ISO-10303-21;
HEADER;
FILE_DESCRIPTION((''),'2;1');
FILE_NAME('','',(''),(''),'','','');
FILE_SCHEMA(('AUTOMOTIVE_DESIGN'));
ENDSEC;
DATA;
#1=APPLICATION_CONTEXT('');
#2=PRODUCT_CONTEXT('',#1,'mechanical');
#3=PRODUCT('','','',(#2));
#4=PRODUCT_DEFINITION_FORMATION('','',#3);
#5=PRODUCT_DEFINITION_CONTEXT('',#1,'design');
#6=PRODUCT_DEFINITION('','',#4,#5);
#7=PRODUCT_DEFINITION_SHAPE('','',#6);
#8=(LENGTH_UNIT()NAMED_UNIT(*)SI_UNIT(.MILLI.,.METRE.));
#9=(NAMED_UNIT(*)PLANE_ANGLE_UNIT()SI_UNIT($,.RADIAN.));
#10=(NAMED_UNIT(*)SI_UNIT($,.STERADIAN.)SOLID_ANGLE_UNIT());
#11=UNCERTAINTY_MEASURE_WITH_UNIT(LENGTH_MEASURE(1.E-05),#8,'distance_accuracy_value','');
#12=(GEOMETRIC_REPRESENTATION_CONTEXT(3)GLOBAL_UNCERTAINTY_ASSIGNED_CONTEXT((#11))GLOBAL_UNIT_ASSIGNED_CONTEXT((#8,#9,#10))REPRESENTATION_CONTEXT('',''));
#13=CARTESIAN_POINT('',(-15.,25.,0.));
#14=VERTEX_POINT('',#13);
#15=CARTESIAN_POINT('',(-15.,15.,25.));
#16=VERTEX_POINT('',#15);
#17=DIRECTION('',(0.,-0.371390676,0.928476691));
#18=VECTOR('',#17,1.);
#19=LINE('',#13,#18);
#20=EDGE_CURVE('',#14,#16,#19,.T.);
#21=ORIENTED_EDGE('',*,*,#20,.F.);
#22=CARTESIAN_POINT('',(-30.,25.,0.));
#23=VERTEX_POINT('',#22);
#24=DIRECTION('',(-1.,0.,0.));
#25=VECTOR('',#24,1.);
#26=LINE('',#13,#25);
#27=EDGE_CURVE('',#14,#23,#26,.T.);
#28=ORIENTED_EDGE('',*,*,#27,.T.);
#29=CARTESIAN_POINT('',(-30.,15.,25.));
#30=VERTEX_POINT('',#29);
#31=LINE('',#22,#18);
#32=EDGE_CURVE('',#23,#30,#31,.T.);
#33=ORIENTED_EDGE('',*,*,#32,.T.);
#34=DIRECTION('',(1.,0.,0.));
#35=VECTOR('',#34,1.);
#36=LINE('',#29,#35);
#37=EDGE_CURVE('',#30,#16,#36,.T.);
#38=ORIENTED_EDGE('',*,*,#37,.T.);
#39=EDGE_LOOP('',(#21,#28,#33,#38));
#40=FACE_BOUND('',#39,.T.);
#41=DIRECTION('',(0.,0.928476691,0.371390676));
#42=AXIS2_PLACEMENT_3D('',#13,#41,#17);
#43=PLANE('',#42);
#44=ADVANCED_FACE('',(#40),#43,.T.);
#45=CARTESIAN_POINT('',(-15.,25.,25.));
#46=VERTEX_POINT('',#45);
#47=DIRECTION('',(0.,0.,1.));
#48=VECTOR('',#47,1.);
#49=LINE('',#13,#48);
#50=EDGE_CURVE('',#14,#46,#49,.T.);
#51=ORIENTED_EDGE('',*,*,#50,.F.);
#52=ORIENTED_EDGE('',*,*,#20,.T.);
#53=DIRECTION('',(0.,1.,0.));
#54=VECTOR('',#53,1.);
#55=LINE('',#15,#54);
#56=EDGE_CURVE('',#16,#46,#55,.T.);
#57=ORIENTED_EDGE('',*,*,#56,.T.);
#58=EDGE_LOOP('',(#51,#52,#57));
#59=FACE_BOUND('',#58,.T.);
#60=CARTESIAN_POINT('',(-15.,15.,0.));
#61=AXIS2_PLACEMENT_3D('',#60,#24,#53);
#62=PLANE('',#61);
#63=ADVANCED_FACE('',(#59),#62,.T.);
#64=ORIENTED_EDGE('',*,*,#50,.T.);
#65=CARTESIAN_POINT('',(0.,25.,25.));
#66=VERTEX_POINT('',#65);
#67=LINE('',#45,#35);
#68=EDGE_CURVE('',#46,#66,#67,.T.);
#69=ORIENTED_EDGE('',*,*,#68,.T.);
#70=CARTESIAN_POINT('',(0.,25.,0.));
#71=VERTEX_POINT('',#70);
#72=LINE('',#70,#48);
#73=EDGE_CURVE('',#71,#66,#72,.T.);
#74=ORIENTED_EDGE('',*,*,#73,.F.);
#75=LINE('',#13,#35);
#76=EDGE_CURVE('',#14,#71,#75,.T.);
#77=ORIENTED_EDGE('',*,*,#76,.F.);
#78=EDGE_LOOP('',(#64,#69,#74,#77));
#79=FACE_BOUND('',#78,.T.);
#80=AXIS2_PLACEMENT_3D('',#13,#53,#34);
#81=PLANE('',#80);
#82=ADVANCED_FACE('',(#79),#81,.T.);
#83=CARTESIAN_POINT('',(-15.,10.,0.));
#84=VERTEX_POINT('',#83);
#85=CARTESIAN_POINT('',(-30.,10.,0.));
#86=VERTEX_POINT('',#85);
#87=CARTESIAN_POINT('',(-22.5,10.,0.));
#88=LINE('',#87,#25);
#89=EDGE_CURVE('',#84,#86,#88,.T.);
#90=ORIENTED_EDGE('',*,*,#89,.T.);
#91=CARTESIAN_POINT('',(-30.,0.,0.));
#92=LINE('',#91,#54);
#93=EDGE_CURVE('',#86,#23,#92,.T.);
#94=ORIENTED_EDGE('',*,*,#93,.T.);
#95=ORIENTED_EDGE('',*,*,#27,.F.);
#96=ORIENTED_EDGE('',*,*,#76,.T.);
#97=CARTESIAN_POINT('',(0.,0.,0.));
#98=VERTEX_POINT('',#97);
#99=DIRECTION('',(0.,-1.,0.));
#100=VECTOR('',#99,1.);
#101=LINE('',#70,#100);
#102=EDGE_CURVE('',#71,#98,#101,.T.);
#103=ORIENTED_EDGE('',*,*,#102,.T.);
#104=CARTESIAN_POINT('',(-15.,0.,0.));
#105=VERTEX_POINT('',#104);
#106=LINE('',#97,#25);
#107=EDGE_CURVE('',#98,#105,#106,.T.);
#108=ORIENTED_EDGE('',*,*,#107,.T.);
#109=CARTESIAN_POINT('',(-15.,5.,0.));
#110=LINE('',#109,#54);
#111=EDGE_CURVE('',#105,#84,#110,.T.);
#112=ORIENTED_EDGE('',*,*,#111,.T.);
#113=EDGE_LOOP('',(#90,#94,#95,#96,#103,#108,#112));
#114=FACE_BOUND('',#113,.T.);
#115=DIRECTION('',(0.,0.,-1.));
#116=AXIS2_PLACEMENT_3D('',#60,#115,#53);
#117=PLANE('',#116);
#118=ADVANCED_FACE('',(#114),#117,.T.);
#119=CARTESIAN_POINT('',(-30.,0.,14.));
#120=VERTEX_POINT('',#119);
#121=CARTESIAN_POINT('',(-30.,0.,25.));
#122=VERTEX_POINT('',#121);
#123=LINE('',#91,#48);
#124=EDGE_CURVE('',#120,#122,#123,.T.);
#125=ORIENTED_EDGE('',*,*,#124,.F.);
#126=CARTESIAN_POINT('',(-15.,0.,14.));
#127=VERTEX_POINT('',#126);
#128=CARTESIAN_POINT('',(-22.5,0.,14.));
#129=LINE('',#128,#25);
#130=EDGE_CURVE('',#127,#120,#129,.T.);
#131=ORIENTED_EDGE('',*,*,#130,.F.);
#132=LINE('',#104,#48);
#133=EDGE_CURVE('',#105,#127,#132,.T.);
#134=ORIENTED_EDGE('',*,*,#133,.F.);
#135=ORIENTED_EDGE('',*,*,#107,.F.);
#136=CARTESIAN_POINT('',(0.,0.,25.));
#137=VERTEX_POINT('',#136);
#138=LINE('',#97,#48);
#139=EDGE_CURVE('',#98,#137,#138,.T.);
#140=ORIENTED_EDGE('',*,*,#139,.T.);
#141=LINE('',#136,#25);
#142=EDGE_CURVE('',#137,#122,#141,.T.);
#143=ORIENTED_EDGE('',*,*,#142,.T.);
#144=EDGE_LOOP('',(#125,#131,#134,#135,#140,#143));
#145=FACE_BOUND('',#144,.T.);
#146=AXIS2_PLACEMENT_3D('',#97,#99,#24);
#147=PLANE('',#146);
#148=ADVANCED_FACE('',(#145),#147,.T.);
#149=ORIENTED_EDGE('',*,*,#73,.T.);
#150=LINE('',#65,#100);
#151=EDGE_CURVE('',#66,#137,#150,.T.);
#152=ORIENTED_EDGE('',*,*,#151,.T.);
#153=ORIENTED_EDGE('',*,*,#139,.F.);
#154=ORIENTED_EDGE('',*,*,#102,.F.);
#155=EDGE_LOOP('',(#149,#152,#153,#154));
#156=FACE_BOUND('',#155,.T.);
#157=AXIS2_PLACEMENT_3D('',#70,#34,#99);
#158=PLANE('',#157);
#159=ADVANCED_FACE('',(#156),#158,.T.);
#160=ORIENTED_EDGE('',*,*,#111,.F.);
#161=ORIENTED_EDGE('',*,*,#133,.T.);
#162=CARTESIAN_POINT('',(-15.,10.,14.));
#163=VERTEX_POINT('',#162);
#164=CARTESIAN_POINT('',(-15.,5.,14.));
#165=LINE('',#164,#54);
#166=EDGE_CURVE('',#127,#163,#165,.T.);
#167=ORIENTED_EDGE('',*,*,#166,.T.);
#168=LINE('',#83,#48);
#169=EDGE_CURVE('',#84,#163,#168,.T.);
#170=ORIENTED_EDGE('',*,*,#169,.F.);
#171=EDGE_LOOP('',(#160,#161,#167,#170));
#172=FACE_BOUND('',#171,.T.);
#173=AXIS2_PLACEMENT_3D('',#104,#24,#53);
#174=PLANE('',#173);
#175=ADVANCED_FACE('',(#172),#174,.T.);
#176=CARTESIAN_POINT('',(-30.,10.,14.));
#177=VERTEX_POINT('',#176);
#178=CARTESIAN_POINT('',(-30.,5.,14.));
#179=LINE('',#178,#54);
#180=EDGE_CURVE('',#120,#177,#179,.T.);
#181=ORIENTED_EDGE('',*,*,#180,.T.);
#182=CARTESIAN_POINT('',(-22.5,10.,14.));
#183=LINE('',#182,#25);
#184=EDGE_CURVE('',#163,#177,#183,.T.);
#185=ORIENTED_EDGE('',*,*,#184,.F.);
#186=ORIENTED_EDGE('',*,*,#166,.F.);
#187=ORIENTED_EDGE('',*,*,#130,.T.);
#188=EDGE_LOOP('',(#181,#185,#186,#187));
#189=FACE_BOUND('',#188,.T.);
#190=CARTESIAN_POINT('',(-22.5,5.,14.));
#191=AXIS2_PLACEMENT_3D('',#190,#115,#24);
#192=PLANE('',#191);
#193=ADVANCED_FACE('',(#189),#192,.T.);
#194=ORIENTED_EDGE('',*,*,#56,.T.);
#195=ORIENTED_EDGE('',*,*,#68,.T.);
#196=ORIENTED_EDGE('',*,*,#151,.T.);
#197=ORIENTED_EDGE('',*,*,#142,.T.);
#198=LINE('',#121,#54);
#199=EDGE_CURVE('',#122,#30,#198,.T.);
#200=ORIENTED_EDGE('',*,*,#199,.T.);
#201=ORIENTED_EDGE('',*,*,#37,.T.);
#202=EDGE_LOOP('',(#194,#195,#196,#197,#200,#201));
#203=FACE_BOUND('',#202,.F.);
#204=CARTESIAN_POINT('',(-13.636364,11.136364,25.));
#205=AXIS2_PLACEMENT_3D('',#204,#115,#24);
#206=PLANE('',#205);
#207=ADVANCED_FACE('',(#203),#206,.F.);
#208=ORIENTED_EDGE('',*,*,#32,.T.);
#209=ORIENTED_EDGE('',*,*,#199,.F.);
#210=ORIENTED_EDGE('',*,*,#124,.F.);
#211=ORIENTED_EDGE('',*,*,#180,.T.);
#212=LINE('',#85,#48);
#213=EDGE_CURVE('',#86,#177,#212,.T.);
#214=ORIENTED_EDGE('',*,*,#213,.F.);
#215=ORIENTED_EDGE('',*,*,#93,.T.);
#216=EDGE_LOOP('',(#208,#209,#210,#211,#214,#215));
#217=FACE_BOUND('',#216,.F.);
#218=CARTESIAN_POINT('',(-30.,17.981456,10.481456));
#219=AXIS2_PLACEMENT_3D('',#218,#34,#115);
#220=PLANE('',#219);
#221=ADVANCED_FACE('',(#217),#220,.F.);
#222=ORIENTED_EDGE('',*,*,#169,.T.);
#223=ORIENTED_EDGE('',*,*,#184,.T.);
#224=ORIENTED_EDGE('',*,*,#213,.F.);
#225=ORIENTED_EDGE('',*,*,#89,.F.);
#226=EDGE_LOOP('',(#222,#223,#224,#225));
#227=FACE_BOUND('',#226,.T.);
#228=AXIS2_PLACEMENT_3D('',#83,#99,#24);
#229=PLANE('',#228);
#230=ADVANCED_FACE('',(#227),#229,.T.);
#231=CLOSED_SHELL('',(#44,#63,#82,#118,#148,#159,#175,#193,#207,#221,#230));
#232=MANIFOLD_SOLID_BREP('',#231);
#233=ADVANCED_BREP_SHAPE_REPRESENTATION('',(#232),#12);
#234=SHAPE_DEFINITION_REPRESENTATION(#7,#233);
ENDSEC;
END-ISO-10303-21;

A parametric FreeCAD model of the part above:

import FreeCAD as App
import Part
import Sketcher


def add_polygon(sketch, points):
    """Adds a closed chain of lines whose ends are joined by coincident constraints."""
    first, n = sketch.GeometryCount, len(points)
    for a, b in zip(points, points[1:] + points[:1]):
        sketch.addGeometry(Part.LineSegment(App.Vector(*a, 0), App.Vector(*b, 0)), False)
    for i in range(n):
        sketch.addConstraint(Sketcher.Constraint("Coincident", first + i, 2, first + (i + 1) % n, 1))

doc = App.newDocument("Part")
body = doc.addObject("PartDesign::Body", "Body")

# Sketch on XY plane
sketch1 = body.newObject("Sketcher::SketchObject", "Sketch")
sketch1.AttachmentSupport = (doc.getObject("XY_Plane"), [""])
sketch1.MapMode = "FlatFace"
add_polygon(sketch1, [(-15, 15), (-30, 15), (-30, 0), (0, 0), (0, 25), (-15, 25)])  # lines 0-5
sketch1.addConstraint([
    Sketcher.Constraint("Horizontal", 0),
    Sketcher.Constraint("Vertical", 1),
    Sketcher.Constraint("Horizontal", 2),
    Sketcher.Constraint("Vertical", 3),
    Sketcher.Constraint("Horizontal", 4),
    Sketcher.Constraint("Vertical", 5),
    Sketcher.Constraint("Coincident", 2, 2, -1, 1),
    Sketcher.Constraint("Equal", 0, 4),
    Sketcher.Constraint("Equal", 4, 1),
    Sketcher.Constraint("DistanceX", 0, 2, 0, 1, 15.0),
    Sketcher.Constraint("DistanceY", 3, 1, 3, 2, 25.0),
])
pad1 = body.newObject("PartDesign::Pad", "Pad")
pad1.Profile = sketch1
pad1.Length = 25

# Sketch on YZ plane
sketch2 = body.newObject("Sketcher::SketchObject", "Sketch001")
sketch2.AttachmentSupport = (doc.getObject("YZ_Plane"), [""])
sketch2.MapMode = "FlatFace"
sketch2.AttachmentOffset = App.Placement(App.Vector(0, 0, -15), App.Rotation())
add_polygon(sketch2, [(15, 25), (25, 0), (15, 0)])  # lines 0-2
sketch2.addConstraint([
    Sketcher.Constraint("Horizontal", 1),
    Sketcher.Constraint("Vertical", 2),
    Sketcher.Constraint("PointOnObject", 0, 2, -1),
    Sketcher.Constraint("DistanceX", 1, 2, 1, 1, 10.0),
    Sketcher.Constraint("DistanceY", 2, 1, 2, 2, 25.0),
    Sketcher.Constraint("DistanceX", -1, 1, 0, 2, 25.0),
])
pad2 = body.newObject("PartDesign::Pad", "Pad001")
pad2.Profile = sketch2
pad2.Length = 15
pad2.Reversed = True

# Sketch on XY plane
sketch3 = body.newObject("Sketcher::SketchObject", "Sketch002")
sketch3.AttachmentSupport = (doc.getObject("XY_Plane"), [""])
sketch3.MapMode = "FlatFace"
add_polygon(sketch3, [(-15, 10), (-15, 0), (-30, 0), (-30, 10)])  # lines 0-3
sketch3.addConstraint([
    Sketcher.Constraint("Vertical", 0),
    Sketcher.Constraint("Horizontal", 1),
    Sketcher.Constraint("Vertical", 2),
    Sketcher.Constraint("Horizontal", 3),
    Sketcher.Constraint("PointOnObject", 0, 2, -1),
    Sketcher.Constraint("DistanceX", 1, 2, 1, 1, 15.0),
    Sketcher.Constraint("DistanceY", 0, 2, 0, 1, 10.0),
    Sketcher.Constraint("DistanceX", 0, 2, -1, 1, 15.0),
])
pocket1 = body.newObject("PartDesign::Pocket", "Pocket")
pocket1.Profile = sketch3
pocket1.Length = 14
pocket1.Reversed = True

doc.recompute()
